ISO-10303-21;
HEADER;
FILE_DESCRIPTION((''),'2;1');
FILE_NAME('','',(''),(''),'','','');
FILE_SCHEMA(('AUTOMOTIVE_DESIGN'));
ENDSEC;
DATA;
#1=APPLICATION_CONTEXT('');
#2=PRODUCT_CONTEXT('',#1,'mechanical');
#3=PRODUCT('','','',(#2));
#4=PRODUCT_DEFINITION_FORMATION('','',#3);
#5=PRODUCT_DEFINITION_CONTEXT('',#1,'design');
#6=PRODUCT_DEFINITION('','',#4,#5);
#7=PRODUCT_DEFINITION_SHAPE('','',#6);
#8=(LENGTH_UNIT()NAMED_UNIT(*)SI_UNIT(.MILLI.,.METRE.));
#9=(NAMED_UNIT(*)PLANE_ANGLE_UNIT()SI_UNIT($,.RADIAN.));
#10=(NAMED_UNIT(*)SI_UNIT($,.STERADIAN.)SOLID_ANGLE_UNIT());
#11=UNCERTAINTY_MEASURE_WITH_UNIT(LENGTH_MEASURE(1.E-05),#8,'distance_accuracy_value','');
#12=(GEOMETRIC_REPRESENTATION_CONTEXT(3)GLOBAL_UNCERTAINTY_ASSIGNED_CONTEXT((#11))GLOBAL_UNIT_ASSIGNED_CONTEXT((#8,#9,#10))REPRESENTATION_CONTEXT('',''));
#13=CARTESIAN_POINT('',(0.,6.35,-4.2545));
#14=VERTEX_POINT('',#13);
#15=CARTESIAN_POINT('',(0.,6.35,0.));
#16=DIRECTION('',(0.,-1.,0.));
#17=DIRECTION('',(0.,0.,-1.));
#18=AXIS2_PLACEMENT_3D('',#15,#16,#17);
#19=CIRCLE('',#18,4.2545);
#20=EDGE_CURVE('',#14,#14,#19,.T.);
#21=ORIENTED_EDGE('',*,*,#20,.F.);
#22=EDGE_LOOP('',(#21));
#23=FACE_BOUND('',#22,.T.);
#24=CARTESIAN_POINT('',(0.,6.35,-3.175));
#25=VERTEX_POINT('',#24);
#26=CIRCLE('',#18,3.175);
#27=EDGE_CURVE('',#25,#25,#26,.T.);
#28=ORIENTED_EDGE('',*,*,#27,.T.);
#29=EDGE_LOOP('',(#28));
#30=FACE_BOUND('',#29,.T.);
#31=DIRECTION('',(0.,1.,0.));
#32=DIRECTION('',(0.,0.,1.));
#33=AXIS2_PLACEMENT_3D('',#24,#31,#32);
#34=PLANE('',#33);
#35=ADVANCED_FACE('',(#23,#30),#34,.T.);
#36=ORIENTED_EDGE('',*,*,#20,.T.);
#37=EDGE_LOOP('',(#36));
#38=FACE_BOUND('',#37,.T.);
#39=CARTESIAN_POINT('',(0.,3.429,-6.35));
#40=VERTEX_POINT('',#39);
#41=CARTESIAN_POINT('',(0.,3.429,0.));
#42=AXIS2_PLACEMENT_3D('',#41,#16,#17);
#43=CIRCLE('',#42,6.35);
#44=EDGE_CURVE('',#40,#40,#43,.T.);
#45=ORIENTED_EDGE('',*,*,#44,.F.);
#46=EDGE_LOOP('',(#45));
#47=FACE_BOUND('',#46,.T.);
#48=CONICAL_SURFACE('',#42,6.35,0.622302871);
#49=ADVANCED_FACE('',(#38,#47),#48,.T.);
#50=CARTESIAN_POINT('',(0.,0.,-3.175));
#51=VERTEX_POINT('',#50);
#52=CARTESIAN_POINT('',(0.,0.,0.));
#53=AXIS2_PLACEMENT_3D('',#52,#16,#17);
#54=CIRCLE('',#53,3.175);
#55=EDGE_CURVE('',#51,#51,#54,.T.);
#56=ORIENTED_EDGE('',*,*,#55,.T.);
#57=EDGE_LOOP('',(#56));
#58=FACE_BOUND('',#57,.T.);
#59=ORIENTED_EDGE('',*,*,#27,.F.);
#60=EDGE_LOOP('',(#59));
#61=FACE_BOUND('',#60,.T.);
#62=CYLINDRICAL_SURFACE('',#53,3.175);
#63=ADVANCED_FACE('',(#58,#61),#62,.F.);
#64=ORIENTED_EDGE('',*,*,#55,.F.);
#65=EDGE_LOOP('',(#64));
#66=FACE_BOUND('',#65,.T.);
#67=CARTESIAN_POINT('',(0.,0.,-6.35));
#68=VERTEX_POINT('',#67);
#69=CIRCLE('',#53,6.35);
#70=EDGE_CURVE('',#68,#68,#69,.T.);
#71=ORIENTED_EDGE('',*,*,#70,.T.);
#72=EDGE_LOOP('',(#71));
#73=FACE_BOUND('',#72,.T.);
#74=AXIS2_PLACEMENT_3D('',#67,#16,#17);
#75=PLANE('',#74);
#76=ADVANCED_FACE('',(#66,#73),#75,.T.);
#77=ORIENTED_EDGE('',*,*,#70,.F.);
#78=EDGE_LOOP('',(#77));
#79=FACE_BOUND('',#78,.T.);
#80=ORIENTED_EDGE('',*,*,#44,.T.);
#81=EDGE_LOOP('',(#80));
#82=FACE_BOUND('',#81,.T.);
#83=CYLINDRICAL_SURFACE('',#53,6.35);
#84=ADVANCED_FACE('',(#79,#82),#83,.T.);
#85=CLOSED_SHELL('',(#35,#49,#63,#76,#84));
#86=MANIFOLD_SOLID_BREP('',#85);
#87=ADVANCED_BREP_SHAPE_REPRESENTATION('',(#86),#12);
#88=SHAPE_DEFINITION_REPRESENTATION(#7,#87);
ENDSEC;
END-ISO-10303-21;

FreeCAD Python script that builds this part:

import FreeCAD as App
import Part
import Sketcher
Q = App.Units.Quantity

doc = App.newDocument("Part")
body = doc.addObject("PartDesign::Body", "Body")

sketch1 = body.newObject("Sketcher::SketchObject", "Sketch")
sketch1.AttachmentSupport = (doc.getObject("YZ_Plane"), [""])
sketch1.MapMode = "FlatFace"
sketch1.addGeometry([
    Part.LineSegment(App.Vector(6.3, -3.2, 0), App.Vector(0, -3.2, 0)),
    Part.LineSegment(App.Vector(0, -3.2, 0), App.Vector(0, -6.3, 0)),
    Part.LineSegment(App.Vector(0, -6.3, 0), App.Vector(3.4, -6.3, 0)),
    Part.LineSegment(App.Vector(3.4, -6.3, 0), App.Vector(6.3, -4.3, 0)),
    Part.LineSegment(App.Vector(6.3, -4.3, 0), App.Vector(6.3, -3.2, 0)),
], False)
sketch1.addConstraint([
    Sketcher.Constraint("Coincident", 0, 2, 1, 1),
    Sketcher.Constraint("Coincident", 1, 2, 2, 1),
    Sketcher.Constraint("Coincident", 2, 2, 3, 1),
    Sketcher.Constraint("Coincident", 3, 2, 4, 1),
    Sketcher.Constraint("Coincident", 4, 2, 0, 1),
    Sketcher.Constraint("Horizontal", 0),
    Sketcher.Constraint("Vertical", 1),
    Sketcher.Constraint("Horizontal", 2),
    Sketcher.Constraint("Vertical", 4),
    Sketcher.Constraint("PointOnObject", 0, 2, -2),
    Sketcher.Constraint("DistanceX", 0, 2, 0, 1, Q("0.25 in")),
    Sketcher.Constraint("DistanceX", 2, 1, 2, 2, Q("0.135 in")),
    Sketcher.Constraint("DistanceY", 1, 2, 1, 1, Q("0.125 in")),
    Sketcher.Constraint("DistanceY", 1, 2, -1, 1, Q("0.25 in")),
    Sketcher.Constraint("DistanceY", 4, 1, 4, 2, Q("0.0425 in")),
])
revolution = body.newObject("PartDesign::Revolution", "Revolution")
revolution.Profile = sketch1
revolution.ReferenceAxis = (sketch1, ["H_Axis"])
revolution.Angle = 360

doc.recompute()
